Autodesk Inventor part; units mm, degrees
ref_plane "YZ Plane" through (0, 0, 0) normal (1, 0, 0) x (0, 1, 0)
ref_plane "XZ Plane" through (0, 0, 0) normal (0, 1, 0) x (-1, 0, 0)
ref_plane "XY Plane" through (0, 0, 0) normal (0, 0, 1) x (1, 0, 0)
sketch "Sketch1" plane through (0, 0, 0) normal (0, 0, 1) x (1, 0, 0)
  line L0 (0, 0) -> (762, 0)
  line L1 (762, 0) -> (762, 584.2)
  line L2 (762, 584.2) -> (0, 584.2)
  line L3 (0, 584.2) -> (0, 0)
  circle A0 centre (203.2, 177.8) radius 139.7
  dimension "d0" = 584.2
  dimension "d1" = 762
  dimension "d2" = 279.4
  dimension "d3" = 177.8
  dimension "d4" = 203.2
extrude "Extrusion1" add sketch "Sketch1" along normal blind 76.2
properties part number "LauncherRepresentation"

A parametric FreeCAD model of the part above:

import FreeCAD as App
import Part
import Sketcher

V = App.Vector
Q = App.Units.Quantity


def add_polygon(sketch, points):
    """Adds a closed chain of lines whose ends are joined by coincident constraints."""
    first, n = sketch.GeometryCount, len(points)
    for a, b in zip(points, points[1:] + points[:1]):
        sketch.addGeometry(Part.LineSegment(App.Vector(*a, 0), App.Vector(*b, 0)), False)
    for i in range(n):
        sketch.addConstraint(Sketcher.Constraint("Coincident", first + i, 2, first + (i + 1) % n, 1))

doc = App.newDocument("Part")
body = doc.addObject("PartDesign::Body", "Body")

# Sketch on XY plane
sketch1 = body.newObject("Sketcher::SketchObject", "Sketch")
sketch1.AttachmentSupport = (doc.getObject("XY_Plane"), [""])
sketch1.MapMode = "FlatFace"
add_polygon(sketch1, [(0, 584.2), (0, 0), (762, 0), (762, 584.2)])  # lines 0-3
sketch1.addGeometry(Part.Circle(V(203.2, 177.8, 0), V(0, 0, 1), 139.7), False)  # 4
sketch1.addConstraint([
    Sketcher.Constraint("Vertical", 0),
    Sketcher.Constraint("Horizontal", 1),
    Sketcher.Constraint("Vertical", 2),
    Sketcher.Constraint("Horizontal", 3),
    Sketcher.Constraint("Coincident", 0, 2, -1, 1),
    Sketcher.Constraint("Diameter", 4, Q("11 in")),
    Sketcher.Constraint("DistanceX", 1, 1, 1, 2, Q("30 in")),
    Sketcher.Constraint("DistanceY", 0, 2, 0, 1, Q("23 in")),
    Sketcher.Constraint("DistanceX", -1, 1, 4, 3, Q("8 in")),
    Sketcher.Constraint("DistanceY", -1, 1, 4, 3, Q("7 in")),
])
pad1 = body.newObject("PartDesign::Pad", "Pad")
pad1.Profile = sketch1
pad1.Length = Q("3 in")

doc.recompute()
